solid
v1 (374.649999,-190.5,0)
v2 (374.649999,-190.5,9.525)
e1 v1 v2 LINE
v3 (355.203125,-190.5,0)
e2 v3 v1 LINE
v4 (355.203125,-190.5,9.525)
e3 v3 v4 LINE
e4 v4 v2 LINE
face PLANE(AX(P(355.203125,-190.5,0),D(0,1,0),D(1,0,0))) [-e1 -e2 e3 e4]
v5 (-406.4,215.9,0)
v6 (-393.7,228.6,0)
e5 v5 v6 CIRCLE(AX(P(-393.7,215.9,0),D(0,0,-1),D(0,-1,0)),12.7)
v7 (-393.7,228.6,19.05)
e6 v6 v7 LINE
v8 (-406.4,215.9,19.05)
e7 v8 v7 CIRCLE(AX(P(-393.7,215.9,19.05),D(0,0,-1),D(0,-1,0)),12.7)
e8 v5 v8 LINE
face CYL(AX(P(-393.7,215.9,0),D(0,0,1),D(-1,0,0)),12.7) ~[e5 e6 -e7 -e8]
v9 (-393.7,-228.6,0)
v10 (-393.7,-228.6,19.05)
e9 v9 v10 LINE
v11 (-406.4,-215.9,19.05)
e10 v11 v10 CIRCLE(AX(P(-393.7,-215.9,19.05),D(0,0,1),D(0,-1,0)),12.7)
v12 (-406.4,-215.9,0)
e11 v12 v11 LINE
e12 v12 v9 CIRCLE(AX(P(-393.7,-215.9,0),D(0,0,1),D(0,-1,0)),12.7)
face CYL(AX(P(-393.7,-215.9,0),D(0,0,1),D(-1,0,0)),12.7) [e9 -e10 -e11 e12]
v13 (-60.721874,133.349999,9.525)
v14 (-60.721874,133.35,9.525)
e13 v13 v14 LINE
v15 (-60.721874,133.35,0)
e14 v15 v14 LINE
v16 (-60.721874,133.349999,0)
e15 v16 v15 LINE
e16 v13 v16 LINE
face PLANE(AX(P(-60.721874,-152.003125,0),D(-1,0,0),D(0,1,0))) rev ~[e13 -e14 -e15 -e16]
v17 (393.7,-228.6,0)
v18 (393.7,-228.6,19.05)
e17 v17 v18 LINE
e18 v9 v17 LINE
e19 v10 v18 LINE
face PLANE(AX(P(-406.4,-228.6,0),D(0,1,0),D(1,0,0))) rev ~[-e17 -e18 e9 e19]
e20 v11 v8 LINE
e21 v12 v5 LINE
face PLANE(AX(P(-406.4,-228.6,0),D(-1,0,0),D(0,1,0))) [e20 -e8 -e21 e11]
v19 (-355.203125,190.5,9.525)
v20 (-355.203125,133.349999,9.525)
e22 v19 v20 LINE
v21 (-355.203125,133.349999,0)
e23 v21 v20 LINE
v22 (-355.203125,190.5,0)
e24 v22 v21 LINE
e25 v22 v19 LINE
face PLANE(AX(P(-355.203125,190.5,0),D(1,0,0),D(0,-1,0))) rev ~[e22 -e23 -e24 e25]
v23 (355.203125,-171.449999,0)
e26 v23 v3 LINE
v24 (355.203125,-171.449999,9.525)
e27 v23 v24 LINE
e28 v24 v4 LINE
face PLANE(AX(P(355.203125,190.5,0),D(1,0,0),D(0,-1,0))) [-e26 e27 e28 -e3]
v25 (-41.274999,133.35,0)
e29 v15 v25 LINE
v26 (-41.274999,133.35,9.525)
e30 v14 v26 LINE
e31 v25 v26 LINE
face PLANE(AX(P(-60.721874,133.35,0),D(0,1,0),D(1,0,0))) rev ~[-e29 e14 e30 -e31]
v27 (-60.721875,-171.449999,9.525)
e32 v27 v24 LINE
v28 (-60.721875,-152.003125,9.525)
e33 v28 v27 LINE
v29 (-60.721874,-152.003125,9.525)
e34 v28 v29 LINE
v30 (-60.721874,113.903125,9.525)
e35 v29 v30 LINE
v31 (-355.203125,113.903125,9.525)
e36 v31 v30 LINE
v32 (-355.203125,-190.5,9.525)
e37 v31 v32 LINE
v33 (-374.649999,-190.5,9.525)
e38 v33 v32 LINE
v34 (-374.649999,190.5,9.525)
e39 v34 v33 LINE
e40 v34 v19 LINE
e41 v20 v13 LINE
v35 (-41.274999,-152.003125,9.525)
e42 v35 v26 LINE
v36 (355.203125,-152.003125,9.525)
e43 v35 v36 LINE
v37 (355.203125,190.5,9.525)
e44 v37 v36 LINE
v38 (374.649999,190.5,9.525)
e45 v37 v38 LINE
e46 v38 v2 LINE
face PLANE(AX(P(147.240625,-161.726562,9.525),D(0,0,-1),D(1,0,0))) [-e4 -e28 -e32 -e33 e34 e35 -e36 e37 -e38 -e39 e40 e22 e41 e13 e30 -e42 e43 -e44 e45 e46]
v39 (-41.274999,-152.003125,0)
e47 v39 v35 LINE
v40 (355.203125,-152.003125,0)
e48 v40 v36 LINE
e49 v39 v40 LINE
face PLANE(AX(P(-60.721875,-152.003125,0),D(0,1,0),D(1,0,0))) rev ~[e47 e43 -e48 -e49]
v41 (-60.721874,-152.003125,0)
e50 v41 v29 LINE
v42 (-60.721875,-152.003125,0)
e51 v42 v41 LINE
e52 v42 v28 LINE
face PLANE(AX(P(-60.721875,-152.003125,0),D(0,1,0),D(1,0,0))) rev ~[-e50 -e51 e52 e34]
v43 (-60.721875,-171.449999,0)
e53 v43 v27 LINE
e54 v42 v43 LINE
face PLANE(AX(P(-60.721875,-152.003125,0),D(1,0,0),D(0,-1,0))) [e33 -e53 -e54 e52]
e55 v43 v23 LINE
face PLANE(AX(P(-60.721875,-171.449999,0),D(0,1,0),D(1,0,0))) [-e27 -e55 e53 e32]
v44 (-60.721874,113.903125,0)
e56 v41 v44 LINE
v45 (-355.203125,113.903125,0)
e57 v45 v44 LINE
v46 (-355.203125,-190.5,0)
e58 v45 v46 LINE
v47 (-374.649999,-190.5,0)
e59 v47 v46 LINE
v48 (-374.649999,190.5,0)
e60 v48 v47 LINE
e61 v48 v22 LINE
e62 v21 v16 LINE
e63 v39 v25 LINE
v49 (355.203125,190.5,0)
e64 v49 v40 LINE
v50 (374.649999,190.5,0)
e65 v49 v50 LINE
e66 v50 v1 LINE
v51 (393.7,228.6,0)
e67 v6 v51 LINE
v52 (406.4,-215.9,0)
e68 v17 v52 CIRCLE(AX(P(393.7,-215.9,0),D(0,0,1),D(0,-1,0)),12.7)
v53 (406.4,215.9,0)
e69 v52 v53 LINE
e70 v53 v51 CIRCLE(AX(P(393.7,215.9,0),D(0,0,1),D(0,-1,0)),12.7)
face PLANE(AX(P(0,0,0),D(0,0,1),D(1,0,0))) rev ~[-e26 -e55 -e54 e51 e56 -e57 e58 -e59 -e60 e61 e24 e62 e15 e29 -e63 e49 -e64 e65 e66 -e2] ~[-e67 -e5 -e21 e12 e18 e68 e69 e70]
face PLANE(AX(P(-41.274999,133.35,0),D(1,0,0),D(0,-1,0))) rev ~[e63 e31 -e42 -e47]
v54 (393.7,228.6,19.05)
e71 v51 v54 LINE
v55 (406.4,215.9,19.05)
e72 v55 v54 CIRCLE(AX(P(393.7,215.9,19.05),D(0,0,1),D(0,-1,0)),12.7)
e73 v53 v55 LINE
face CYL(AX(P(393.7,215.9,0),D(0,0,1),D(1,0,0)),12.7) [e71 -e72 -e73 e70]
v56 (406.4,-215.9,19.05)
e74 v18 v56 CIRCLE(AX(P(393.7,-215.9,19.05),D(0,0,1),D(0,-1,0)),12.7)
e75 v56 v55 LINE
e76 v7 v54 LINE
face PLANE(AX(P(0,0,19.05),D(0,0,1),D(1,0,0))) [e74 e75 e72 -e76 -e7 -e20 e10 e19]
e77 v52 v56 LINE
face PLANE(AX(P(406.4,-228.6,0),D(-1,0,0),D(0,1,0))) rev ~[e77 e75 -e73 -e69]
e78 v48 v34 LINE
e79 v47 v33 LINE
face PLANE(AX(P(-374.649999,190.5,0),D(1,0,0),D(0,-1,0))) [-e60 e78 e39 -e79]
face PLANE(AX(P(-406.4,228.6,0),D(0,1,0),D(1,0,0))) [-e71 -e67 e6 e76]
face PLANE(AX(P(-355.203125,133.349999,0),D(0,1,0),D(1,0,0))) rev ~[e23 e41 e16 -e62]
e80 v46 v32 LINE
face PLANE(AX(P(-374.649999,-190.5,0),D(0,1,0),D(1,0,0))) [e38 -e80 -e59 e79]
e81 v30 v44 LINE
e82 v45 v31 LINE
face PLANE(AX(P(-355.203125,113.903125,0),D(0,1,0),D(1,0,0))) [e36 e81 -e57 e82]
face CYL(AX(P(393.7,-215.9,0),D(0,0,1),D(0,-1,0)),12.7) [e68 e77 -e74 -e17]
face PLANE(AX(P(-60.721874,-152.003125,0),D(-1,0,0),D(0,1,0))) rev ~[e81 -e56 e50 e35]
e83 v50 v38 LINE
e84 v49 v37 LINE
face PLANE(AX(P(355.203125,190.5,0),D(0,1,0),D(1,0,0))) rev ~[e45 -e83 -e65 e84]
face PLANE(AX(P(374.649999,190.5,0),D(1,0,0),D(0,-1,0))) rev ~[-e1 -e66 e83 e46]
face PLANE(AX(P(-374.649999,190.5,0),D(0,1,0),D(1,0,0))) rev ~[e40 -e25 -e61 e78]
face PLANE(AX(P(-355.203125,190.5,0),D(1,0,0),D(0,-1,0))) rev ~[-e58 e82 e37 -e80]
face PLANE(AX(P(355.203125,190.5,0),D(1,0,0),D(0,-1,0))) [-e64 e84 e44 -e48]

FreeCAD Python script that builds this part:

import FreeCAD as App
import Part
import Sketcher
Q = App.Units.Quantity


def edges_at(feature, points):
    """Names of the edges that pass closest to the given points."""
    edges = feature.Shape.Edges
    near = lambda p: min(range(len(edges)), key=lambda i: edges[i].distToShape(Part.Vertex(*p))[0])
    return sorted({f"Edge{near(p) + 1}" for p in points})


def add_polygon(sketch, points):
    """Adds a closed chain of lines whose ends are joined by coincident constraints."""
    first, n = sketch.GeometryCount, len(points)
    for a, b in zip(points, points[1:] + points[:1]):
        sketch.addGeometry(Part.LineSegment(App.Vector(*a, 0), App.Vector(*b, 0)), False)
    for i in range(n):
        sketch.addConstraint(Sketcher.Constraint("Coincident", first + i, 2, first + (i + 1) % n, 1))

doc = App.newDocument("Part")
body = doc.addObject("PartDesign::Body", "Body")

sketch1 = body.newObject("Sketcher::SketchObject", "Sketch")
sketch1.AttachmentSupport = (doc.getObject("XY_Plane"), [""])
sketch1.MapMode = "FlatFace"
add_polygon(sketch1, [(-406.4, 228.6), (-406.4, -228.6), (406.4, -228.6), (406.4, 228.6)])
sketch1.addConstraint(Sketcher.Constraint("Vertical", 0))
sketch1.addConstraint(Sketcher.Constraint("Horizontal", 1))
sketch1.addConstraint(Sketcher.Constraint("Vertical", 2))
sketch1.addConstraint(Sketcher.Constraint("Horizontal", 3))
sketch1.addConstraint(Sketcher.Constraint("Symmetric", 0, 2, 2, 2, -1, 1))
sketch1.addConstraint(Sketcher.Constraint("DistanceX", 1, 1, 1, 2, Q("32 in")))
sketch1.addConstraint(Sketcher.Constraint("DistanceY", 0, 2, 0, 1, Q("18 in")))
pad1 = body.newObject("PartDesign::Pad", "Pad")
pad1.Profile = sketch1
pad1.Length = Q("0.75 in")
doc.recompute()

fillet = body.newObject("PartDesign::Fillet", "Fillet")
fillet.Base = (pad1, edges_at(pad1, [
    (-406.4, -228.6, 9.525),
    (406.4, -228.6, 9.525),
    (406.4, 228.6, 9.525),
    (-406.4, 228.6, 9.525),
]))
fillet.Radius = Q("0.5 in")

sketch2 = body.newObject("Sketcher::SketchObject", "Sketch001")
sketch2.AttachmentSupport = (doc.getObject("XY_Plane"), [""])
sketch2.MapMode = "FlatFace"
add_polygon(sketch2, [(-60.721874, 133.35), (-41.274999, 133.35), (-41.274999, -152.003125), (-60.721874, -152.003125)])
sketch2.addConstraint(Sketcher.Constraint("Horizontal", 0))
sketch2.addConstraint(Sketcher.Constraint("Vertical", 1))
sketch2.addConstraint(Sketcher.Constraint("Horizontal", 2))
sketch2.addConstraint(Sketcher.Constraint("Vertical", 3))
sketch2.addConstraint(Sketcher.Constraint("DistanceX", 0, 1, 0, 2, Q("0.765625 in")))
sketch2.addConstraint(Sketcher.Constraint("DistanceY", 1, 2, 1, 1, Q("11.234375 in")))
sketch2.addConstraint(Sketcher.Constraint("DistanceY", -1, 1, 0, 2, Q("5.25 in")))
sketch2.addConstraint(Sketcher.Constraint("DistanceX", 0, 2, -1, 1, Q("1.625 in")))
pocket1 = body.newObject("PartDesign::Pocket", "Pocket")
pocket1.Profile = sketch2
pocket1.Length = Q("0.375 in")
pocket1.Reversed = True

sketch3 = body.newObject("Sketcher::SketchObject", "Sketch002")
sketch3.AttachmentSupport = (doc.getObject("XY_Plane"), [""])
sketch3.MapMode = "FlatFace"
add_polygon(sketch3, [(355.203125, -190.5), (355.203125, 190.5), (374.649999, 190.5), (374.649999, -190.5)])
add_polygon(sketch3, [(-374.649999, -190.5), (-374.649999, 190.5), (-355.203125, 190.5), (-355.203125, -190.5)])
sketch3.addConstraint(Sketcher.Constraint("Vertical", 0))
sketch3.addConstraint(Sketcher.Constraint("Horizontal", 1))
sketch3.addConstraint(Sketcher.Constraint("Vertical", 2))
sketch3.addConstraint(Sketcher.Constraint("Horizontal", 3))
sketch3.addConstraint(Sketcher.Constraint("Vertical", 4))
sketch3.addConstraint(Sketcher.Constraint("Horizontal", 5))
sketch3.addConstraint(Sketcher.Constraint("Vertical", 6))
sketch3.addConstraint(Sketcher.Constraint("Horizontal", 7))
sketch3.addConstraint(Sketcher.Constraint("Symmetric", 2, 2, 4, 2, -1, 1))
sketch3.addConstraint(Sketcher.Constraint("Symmetric", 0, 2, 6, 2, -1, 1))
sketch3.addConstraint(Sketcher.Constraint("Horizontal", 1, 2, 4, 2))
sketch3.addConstraint(Sketcher.Constraint("DistanceY", 0, 1, 0, 2, Q("15 in")))
sketch3.addConstraint(Sketcher.Constraint("DistanceX", 4, 2, 1, 2, Q("29.5 in")))
sketch3.addConstraint(Sketcher.Constraint("DistanceX", 1, 1, 1, 2, Q("0.765625 in")))
pocket2 = body.newObject("PartDesign::Pocket", "Pocket001")
pocket2.Profile = sketch3
pocket2.Length = Q("0.375 in")
pocket2.Reversed = True

sketch4 = body.newObject("Sketcher::SketchObject", "Sketch003")
sketch4.AttachmentSupport = (doc.getObject("XY_Plane"), [""])
sketch4.MapMode = "FlatFace"
add_polygon(sketch4, [(-355.203125, 113.903125), (-355.203125, 133.349999), (-41.274999, 133.349999), (-41.274999, 113.903125)])
add_polygon(sketch4, [(-60.721875, -171.449999), (-60.721875, -152.003125), (355.203125, -152.003125), (355.203125, -171.449999)])
sketch4.addConstraint(Sketcher.Constraint("Vertical", 0))
sketch4.addConstraint(Sketcher.Constraint("Horizontal", 1))
sketch4.addConstraint(Sketcher.Constraint("Vertical", 2))
sketch4.addConstraint(Sketcher.Constraint("Horizontal", 3))
sketch4.addConstraint(Sketcher.Constraint("Vertical", 4))
sketch4.addConstraint(Sketcher.Constraint("Horizontal", 5))
sketch4.addConstraint(Sketcher.Constraint("Vertical", 6))
sketch4.addConstraint(Sketcher.Constraint("Horizontal", 7))
sketch4.addConstraint(Sketcher.Constraint("Equal", 2, 4))
sketch4.addConstraint(Sketcher.Constraint("DistanceY", 6, 2, 1, 2, Q("12 in")))
sketch4.addConstraint(Sketcher.Constraint("DistanceX", 1, 1, 1, 2, Q("12.359375 in")))
sketch4.addConstraint(Sketcher.Constraint("DistanceX", 5, 1, 5, 2, Q("16.375 in")))
sketch4.addConstraint(Sketcher.Constraint("DistanceY", 0, 1, 0, 2, Q("0.765625 in")))
sketch4.addConstraint(Sketcher.Constraint("DistanceY", -1, 1, 0, 2, Q("5.25 in")))
sketch4.addConstraint(Sketcher.Constraint("DistanceX", 0, 2, -1, 1, Q("13.984375 in")))
sketch4.addConstraint(Sketcher.Constraint("DistanceX", 4, 2, -1, 1, Q("2.390625 in")))
pocket3 = body.newObject("PartDesign::Pocket", "Pocket002")
pocket3.Profile = sketch4
pocket3.Length = Q("0.375 in")
pocket3.Reversed = True

doc.recompute()
